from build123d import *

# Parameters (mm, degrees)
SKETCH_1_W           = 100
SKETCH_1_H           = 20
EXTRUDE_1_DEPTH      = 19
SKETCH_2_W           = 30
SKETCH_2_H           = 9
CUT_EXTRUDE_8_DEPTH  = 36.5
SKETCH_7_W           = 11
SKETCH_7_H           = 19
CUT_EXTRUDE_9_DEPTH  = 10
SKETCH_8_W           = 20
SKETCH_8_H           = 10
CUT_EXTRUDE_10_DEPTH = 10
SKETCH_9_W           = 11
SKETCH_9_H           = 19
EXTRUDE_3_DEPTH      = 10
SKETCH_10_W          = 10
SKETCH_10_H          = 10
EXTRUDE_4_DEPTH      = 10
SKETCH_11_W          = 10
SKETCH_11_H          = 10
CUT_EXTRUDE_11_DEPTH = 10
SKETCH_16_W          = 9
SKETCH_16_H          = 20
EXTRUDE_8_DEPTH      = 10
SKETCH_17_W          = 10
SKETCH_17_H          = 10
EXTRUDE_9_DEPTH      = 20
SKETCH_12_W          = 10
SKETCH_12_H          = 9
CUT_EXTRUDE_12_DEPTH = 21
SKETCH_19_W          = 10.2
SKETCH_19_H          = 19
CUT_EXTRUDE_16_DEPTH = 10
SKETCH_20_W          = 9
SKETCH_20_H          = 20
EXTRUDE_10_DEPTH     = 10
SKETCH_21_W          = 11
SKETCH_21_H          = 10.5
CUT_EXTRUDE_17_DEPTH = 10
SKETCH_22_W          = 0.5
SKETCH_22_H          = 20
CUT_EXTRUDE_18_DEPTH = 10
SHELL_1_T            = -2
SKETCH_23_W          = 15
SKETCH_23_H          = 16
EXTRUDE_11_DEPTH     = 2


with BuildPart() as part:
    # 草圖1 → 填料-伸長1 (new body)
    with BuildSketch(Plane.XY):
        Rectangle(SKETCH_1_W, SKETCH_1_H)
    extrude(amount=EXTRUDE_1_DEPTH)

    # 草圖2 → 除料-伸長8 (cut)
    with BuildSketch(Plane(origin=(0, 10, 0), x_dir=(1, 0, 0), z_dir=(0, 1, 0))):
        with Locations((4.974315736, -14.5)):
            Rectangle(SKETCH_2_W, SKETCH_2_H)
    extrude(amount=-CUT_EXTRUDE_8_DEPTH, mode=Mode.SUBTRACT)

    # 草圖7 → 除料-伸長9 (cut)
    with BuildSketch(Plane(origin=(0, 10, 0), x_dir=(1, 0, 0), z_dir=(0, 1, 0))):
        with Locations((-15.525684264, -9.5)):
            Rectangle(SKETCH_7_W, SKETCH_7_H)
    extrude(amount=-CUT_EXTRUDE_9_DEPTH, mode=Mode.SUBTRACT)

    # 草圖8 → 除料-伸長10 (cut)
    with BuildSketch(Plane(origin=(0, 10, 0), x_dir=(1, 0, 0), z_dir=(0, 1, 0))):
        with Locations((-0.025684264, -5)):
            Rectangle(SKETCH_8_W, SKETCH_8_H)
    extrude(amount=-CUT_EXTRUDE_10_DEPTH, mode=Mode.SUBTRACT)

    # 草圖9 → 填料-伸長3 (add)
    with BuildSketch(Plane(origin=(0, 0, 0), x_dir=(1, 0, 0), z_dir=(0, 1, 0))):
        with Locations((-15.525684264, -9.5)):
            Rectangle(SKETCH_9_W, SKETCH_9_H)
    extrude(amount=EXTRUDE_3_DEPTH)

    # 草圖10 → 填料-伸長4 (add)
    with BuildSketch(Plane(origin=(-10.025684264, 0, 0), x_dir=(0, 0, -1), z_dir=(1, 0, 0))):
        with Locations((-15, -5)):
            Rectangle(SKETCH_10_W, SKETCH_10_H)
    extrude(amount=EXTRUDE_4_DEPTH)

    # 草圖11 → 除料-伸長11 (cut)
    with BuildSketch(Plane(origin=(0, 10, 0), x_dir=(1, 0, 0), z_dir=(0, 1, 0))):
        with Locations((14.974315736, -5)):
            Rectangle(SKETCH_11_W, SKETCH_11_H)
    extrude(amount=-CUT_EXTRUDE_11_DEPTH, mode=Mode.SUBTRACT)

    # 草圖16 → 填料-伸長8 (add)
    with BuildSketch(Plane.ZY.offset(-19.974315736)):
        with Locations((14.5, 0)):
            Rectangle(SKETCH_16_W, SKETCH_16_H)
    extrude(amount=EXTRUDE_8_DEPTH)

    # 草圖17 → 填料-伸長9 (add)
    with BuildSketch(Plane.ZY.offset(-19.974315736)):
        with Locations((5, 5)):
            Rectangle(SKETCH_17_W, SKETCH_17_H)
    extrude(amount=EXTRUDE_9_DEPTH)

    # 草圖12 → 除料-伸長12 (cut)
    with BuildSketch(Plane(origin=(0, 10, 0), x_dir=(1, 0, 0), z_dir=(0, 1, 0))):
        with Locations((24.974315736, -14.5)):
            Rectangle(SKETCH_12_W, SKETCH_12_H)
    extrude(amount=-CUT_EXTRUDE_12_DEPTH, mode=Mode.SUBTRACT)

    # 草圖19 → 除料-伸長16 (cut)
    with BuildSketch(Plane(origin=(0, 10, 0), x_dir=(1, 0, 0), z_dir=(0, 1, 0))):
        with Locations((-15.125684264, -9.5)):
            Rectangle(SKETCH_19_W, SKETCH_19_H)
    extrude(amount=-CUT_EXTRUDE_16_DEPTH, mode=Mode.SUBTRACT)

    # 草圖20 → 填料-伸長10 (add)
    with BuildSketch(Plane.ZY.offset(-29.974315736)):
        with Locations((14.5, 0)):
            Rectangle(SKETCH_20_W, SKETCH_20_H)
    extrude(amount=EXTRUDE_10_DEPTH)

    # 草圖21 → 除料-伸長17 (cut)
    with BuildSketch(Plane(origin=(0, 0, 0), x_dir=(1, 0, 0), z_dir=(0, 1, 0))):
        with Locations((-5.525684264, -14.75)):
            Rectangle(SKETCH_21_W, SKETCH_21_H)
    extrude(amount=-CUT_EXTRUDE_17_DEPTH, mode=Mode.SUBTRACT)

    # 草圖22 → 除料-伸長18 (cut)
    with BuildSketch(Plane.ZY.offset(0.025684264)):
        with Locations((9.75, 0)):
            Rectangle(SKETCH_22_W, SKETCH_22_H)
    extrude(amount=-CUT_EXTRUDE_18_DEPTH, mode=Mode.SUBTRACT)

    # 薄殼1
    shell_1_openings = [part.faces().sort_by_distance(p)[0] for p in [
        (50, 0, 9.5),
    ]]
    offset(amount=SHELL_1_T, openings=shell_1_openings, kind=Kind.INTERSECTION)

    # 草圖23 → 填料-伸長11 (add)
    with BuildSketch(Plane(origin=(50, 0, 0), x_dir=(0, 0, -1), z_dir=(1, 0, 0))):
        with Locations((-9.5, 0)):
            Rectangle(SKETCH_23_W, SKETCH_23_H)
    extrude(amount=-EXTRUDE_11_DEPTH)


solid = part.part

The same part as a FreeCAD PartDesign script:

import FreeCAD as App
import Part
import Sketcher
from FreeCAD import Vector


def faces_at(feature, points):
    """Names of the faces that lie closest to the given points."""
    faces = feature.Shape.Faces
    near = lambda p: min(range(len(faces)), key=lambda i: faces[i].distToShape(Part.Vertex(*p))[0])
    return sorted({f"Face{near(p) + 1}" for p in points})

doc = App.newDocument("Part")
body = doc.addObject("PartDesign::Body", "Body")

# Sketch on XY plane
sketch1 = body.newObject("Sketcher::SketchObject", "Sketch")
sketch1.AttachmentSupport = (doc.getObject("XY_Plane"), [""])
sketch1.MapMode = "FlatFace"
sketch1.addGeometry([
    Part.LineSegment(Vector(-50, 10, 0), Vector(-50, -10, 0)),
    Part.LineSegment(Vector(-50, -10, 0), Vector(50, -10, 0)),
    Part.LineSegment(Vector(50, -10, 0), Vector(50, 10, 0)),
    Part.LineSegment(Vector(50, 10, 0), Vector(-50, 10, 0)),
], False)
sketch1.addConstraint([
    Sketcher.Constraint("Coincident", 0, 2, 1, 1),
    Sketcher.Constraint("Coincident", 1, 2, 2, 1),
    Sketcher.Constraint("Coincident", 2, 2, 3, 1),
    Sketcher.Constraint("Coincident", 3, 2, 0, 1),
    Sketcher.Constraint("Vertical", 0),
    Sketcher.Constraint("Horizontal", 1),
    Sketcher.Constraint("Vertical", 2),
    Sketcher.Constraint("Horizontal", 3),
    Sketcher.Constraint("Symmetric", 0, 2, 2, 2, -1, 1),
    Sketcher.Constraint("DistanceX", 1, 1, 1, 2, 100.0),
    Sketcher.Constraint("DistanceY", 0, 2, 0, 1, 20.0),
])
pad1 = body.newObject("PartDesign::Pad", "Pad")
pad1.Profile = sketch1
pad1.Length = 19

# Sketch on XZ plane
sketch2 = body.newObject("Sketcher::SketchObject", "Sketch001")
sketch2.AttachmentSupport = (doc.getObject("XZ_Plane"), [""])
sketch2.MapMode = "FlatFace"
sketch2.AttachmentOffset = App.Placement(Vector(0, 0, -10), App.Rotation())
sketch2.addGeometry([
    Part.LineSegment(Vector(-10.025684, 10, 0), Vector(-10.025684, 19, 0)),
    Part.LineSegment(Vector(-10.025684, 19, 0), Vector(19.974316, 19, 0)),
    Part.LineSegment(Vector(19.974316, 19, 0), Vector(19.974316, 10, 0)),
    Part.LineSegment(Vector(19.974316, 10, 0), Vector(-10.025684, 10, 0)),
], False)
sketch2.addConstraint([
    Sketcher.Constraint("Coincident", 0, 2, 1, 1),
    Sketcher.Constraint("Coincident", 1, 2, 2, 1),
    Sketcher.Constraint("Coincident", 2, 2, 3, 1),
    Sketcher.Constraint("Coincident", 3, 2, 0, 1),
    Sketcher.Constraint("Vertical", 0),
    Sketcher.Constraint("Horizontal", 1),
    Sketcher.Constraint("Vertical", 2),
    Sketcher.Constraint("Horizontal", 3),
    Sketcher.Constraint("DistanceX", 1, 1, 1, 2, 30.0),
    Sketcher.Constraint("DistanceY", 0, 1, 0, 2, 9.0),
    Sketcher.Constraint("DistanceY", -1, 1, 0, 2, 19.0),
    Sketcher.Constraint("DistanceX", 0, 2, -1, 1, 10.025684),
])
pocket1 = body.newObject("PartDesign::Pocket", "Pocket")
pocket1.Profile = sketch2
pocket1.Length = 36.5
pocket1.Reversed = True

# Sketch on XZ plane
sketch3 = body.newObject("Sketcher::SketchObject", "Sketch002")
sketch3.AttachmentSupport = (doc.getObject("XZ_Plane"), [""])
sketch3.MapMode = "FlatFace"
sketch3.AttachmentOffset = App.Placement(Vector(0, 0, -10), App.Rotation())
sketch3.addGeometry([
    Part.LineSegment(Vector(-21.025684, 0, 0), Vector(-21.025684, 19, 0)),
    Part.LineSegment(Vector(-21.025684, 19, 0), Vector(-10.025684, 19, 0)),
    Part.LineSegment(Vector(-10.025684, 19, 0), Vector(-10.025684, 0, 0)),
    Part.LineSegment(Vector(-10.025684, 0, 0), Vector(-21.025684, 0, 0)),
], False)
sketch3.addConstraint([
    Sketcher.Constraint("Coincident", 0, 2, 1, 1),
    Sketcher.Constraint("Coincident", 1, 2, 2, 1),
    Sketcher.Constraint("Coincident", 2, 2, 3, 1),
    Sketcher.Constraint("Coincident", 3, 2, 0, 1),
    Sketcher.Constraint("Vertical", 0),
    Sketcher.Constraint("Horizontal", 1),
    Sketcher.Constraint("Vertical", 2),
    Sketcher.Constraint("Horizontal", 3),
    Sketcher.Constraint("PointOnObject", 2, 2, -1),
    Sketcher.Constraint("DistanceX", 1, 1, 1, 2, 11.0),
    Sketcher.Constraint("DistanceY", 0, 1, 0, 2, 19.0),
    Sketcher.Constraint("DistanceX", 0, 2, -1, 1, 21.025684),
])
pocket2 = body.newObject("PartDesign::Pocket", "Pocket001")
pocket2.Profile = sketch3
pocket2.Length = 10
pocket2.Reversed = True

# Sketch on XZ plane
sketch4 = body.newObject("Sketcher::SketchObject", "Sketch003")
sketch4.AttachmentSupport = (doc.getObject("XZ_Plane"), [""])
sketch4.MapMode = "FlatFace"
sketch4.AttachmentOffset = App.Placement(Vector(0, 0, -10), App.Rotation())
sketch4.addGeometry([
    Part.LineSegment(Vector(-10.025684, 0, 0), Vector(-10.025684, 10, 0)),
    Part.LineSegment(Vector(-10.025684, 10, 0), Vector(9.974316, 10, 0)),
    Part.LineSegment(Vector(9.974316, 10, 0), Vector(9.974316, 0, 0)),
    Part.LineSegment(Vector(9.974316, 0, 0), Vector(-10.025684, 0, 0)),
], False)
sketch4.addConstraint([
    Sketcher.Constraint("Coincident", 0, 2, 1, 1),
    Sketcher.Constraint("Coincident", 1, 2, 2, 1),
    Sketcher.Constraint("Coincident", 2, 2, 3, 1),
    Sketcher.Constraint("Coincident", 3, 2, 0, 1),
    Sketcher.Constraint("Vertical", 0),
    Sketcher.Constraint("Horizontal", 1),
    Sketcher.Constraint("Vertical", 2),
    Sketcher.Constraint("Horizontal", 3),
    Sketcher.Constraint("PointOnObject", 2, 2, -1),
    Sketcher.Constraint("DistanceX", 1, 1, 1, 2, 20.0),
    Sketcher.Constraint("DistanceY", 0, 1, 0, 2, 10.0),
    Sketcher.Constraint("DistanceX", 0, 2, -1, 1, 10.025684),
])
pocket3 = body.newObject("PartDesign::Pocket", "Pocket002")
pocket3.Profile = sketch4
pocket3.Length = 10
pocket3.Reversed = True

# Sketch on XZ plane
sketch5 = body.newObject("Sketcher::SketchObject", "Sketch004")
sketch5.AttachmentSupport = (doc.getObject("XZ_Plane"), [""])
sketch5.MapMode = "FlatFace"
sketch5.addGeometry([
    Part.LineSegment(Vector(-21.025684, 0, 0), Vector(-21.025684, 19, 0)),
    Part.LineSegment(Vector(-21.025684, 19, 0), Vector(-10.025684, 19, 0)),
    Part.LineSegment(Vector(-10.025684, 19, 0), Vector(-10.025684, 0, 0)),
    Part.LineSegment(Vector(-10.025684, 0, 0), Vector(-21.025684, 0, 0)),
], False)
sketch5.addConstraint([
    Sketcher.Constraint("Coincident", 0, 2, 1, 1),
    Sketcher.Constraint("Coincident", 1, 2, 2, 1),
    Sketcher.Constraint("Coincident", 2, 2, 3, 1),
    Sketcher.Constraint("Coincident", 3, 2, 0, 1),
    Sketcher.Constraint("Vertical", 0),
    Sketcher.Constraint("Horizontal", 1),
    Sketcher.Constraint("Vertical", 2),
    Sketcher.Constraint("Horizontal", 3),
    Sketcher.Constraint("PointOnObject", 2, 2, -1),
    Sketcher.Constraint("DistanceX", 1, 1, 1, 2, 11.0),
    Sketcher.Constraint("DistanceY", 0, 1, 0, 2, 19.0),
    Sketcher.Constraint("DistanceX", 0, 2, -1, 1, 21.025684),
])
pad2 = body.newObject("PartDesign::Pad", "Pad001")
pad2.Profile = sketch5
pad2.Length = 10
pad2.Reversed = True

# Sketch on YZ plane
sketch6 = body.newObject("Sketcher::SketchObject", "Sketch005")
sketch6.AttachmentSupport = (doc.getObject("YZ_Plane"), [""])
sketch6.MapMode = "FlatFace"
sketch6.AttachmentOffset = App.Placement(Vector(0, 0, -10.025684), App.Rotation())
sketch6.addGeometry([
    Part.LineSegment(Vector(0, 20, 0), Vector(-10, 20, 0)),
    Part.LineSegment(Vector(-10, 20, 0), Vector(-10, 10, 0)),
    Part.LineSegment(Vector(-10, 10, 0), Vector(0, 10, 0)),
    Part.LineSegment(Vector(0, 10, 0), Vector(0, 20, 0)),
], False)
sketch6.addConstraint([
    Sketcher.Constraint("Coincident", 0, 2, 1, 1),
    Sketcher.Constraint("Coincident", 1, 2, 2, 1),
    Sketcher.Constraint("Coincident", 2, 2, 3, 1),
    Sketcher.Constraint("Coincident", 3, 2, 0, 1),
    Sketcher.Constraint("Horizontal", 0),
    Sketcher.Constraint("Vertical", 1),
    Sketcher.Constraint("Horizontal", 2),
    Sketcher.Constraint("Vertical", 3),
    Sketcher.Constraint("PointOnObject", 2, 2, -2),
    Sketcher.Constraint("Equal", 2, 1),
    Sketcher.Constraint("DistanceX", 0, 2, 0, 1, 10.0),
    Sketcher.Constraint("DistanceY", -1, 1, 0, 2, 20.0),
])
pad3 = body.newObject("PartDesign::Pad", "Pad002")
pad3.Profile = sketch6
pad3.Length = 10

# Sketch on XZ plane
sketch7 = body.newObject("Sketcher::SketchObject", "Sketch006")
sketch7.AttachmentSupport = (doc.getObject("XZ_Plane"), [""])
sketch7.MapMode = "FlatFace"
sketch7.AttachmentOffset = App.Placement(Vector(0, 0, -10), App.Rotation())
sketch7.addGeometry([
    Part.LineSegment(Vector(9.974316, 0, 0), Vector(9.974316, 10, 0)),
    Part.LineSegment(Vector(9.974316, 10, 0), Vector(19.974316, 10, 0)),
    Part.LineSegment(Vector(19.974316, 10, 0), Vector(19.974316, 0, 0)),
    Part.LineSegment(Vector(19.974316, 0, 0), Vector(9.974316, 0, 0)),
], False)
sketch7.addConstraint([
    Sketcher.Constraint("Coincident", 0, 2, 1, 1),
    Sketcher.Constraint("Coincident", 1, 2, 2, 1),
    Sketcher.Constraint("Coincident", 2, 2, 3, 1),
    Sketcher.Constraint("Coincident", 3, 2, 0, 1),
    Sketcher.Constraint("Vertical", 0),
    Sketcher.Constraint("Horizontal", 1),
    Sketcher.Constraint("Vertical", 2),
    Sketcher.Constraint("Horizontal", 3),
    Sketcher.Constraint("PointOnObject", 2, 2, -1),
    Sketcher.Constraint("Equal", 3, 0),
    Sketcher.Constraint("DistanceX", 1, 1, 1, 2, 10.0),
    Sketcher.Constraint("DistanceX", -1, 1, 0, 2, 9.974316),
])
pocket4 = body.newObject("PartDesign::Pocket", "Pocket003")
pocket4.Profile = sketch7
pocket4.Length = 10
pocket4.Reversed = True

# Sketch on YZ plane
sketch8 = body.newObject("Sketcher::SketchObject", "Sketch007")
sketch8.AttachmentSupport = (doc.getObject("YZ_Plane"), [""])
sketch8.MapMode = "FlatFace"
sketch8.AttachmentOffset = App.Placement(Vector(0, 0, 19.974316), App.Rotation())
sketch8.addGeometry([
    Part.LineSegment(Vector(10, 10, 0), Vector(-10, 10, 0)),
    Part.LineSegment(Vector(-10, 10, 0), Vector(-10, 19, 0)),
    Part.LineSegment(Vector(-10, 19, 0), Vector(10, 19, 0)),
    Part.LineSegment(Vector(10, 19, 0), Vector(10, 10, 0)),
], False)
sketch8.addConstraint([
    Sketcher.Constraint("Coincident", 0, 2, 1, 1),
    Sketcher.Constraint("Coincident", 1, 2, 2, 1),
    Sketcher.Constraint("Coincident", 2, 2, 3, 1),
    Sketcher.Constraint("Coincident", 3, 2, 0, 1),
    Sketcher.Constraint("Horizontal", 0),
    Sketcher.Constraint("Vertical", 1),
    Sketcher.Constraint("Horizontal", 2),
    Sketcher.Constraint("Vertical", 3),
    Sketcher.Constraint("DistanceX", 0, 2, 0, 1, 20.0),
    Sketcher.Constraint("DistanceY", 1, 1, 1, 2, 9.0),
    Sketcher.Constraint("DistanceX", 0, 2, -1, 1, 10.0),
    Sketcher.Constraint("DistanceY", -1, 1, 0, 2, 10.0),
])
pad4 = body.newObject("PartDesign::Pad", "Pad003")
pad4.Profile = sketch8
pad4.Length = 10
pad4.Reversed = True

# Sketch on YZ plane
sketch9 = body.newObject("Sketcher::SketchObject", "Sketch008")
sketch9.AttachmentSupport = (doc.getObject("YZ_Plane"), [""])
sketch9.MapMode = "FlatFace"
sketch9.AttachmentOffset = App.Placement(Vector(0, 0, 19.974316), App.Rotation())
sketch9.addGeometry([
    Part.LineSegment(Vector(10, 0, 0), Vector(0, 0, 0)),
    Part.LineSegment(Vector(0, 0, 0), Vector(0, 10, 0)),
    Part.LineSegment(Vector(0, 10, 0), Vector(10, 10, 0)),
    Part.LineSegment(Vector(10, 10, 0), Vector(10, 0, 0)),
], False)
sketch9.addConstraint([
    Sketcher.Constraint("Coincident", 0, 2, 1, 1),
    Sketcher.Constraint("Coincident", 1, 2, 2, 1),
    Sketcher.Constraint("Coincident", 2, 2, 3, 1),
    Sketcher.Constraint("Coincident", 3, 2, 0, 1),
    Sketcher.Constraint("Horizontal", 0),
    Sketcher.Constraint("Vertical", 1),
    Sketcher.Constraint("Horizontal", 2),
    Sketcher.Constraint("Vertical", 3),
    Sketcher.Constraint("Coincident", 0, 2, -1, 1),
    Sketcher.Constraint("Equal", 2, 1),
    Sketcher.Constraint("DistanceX", 0, 2, 0, 1, 10.0),
])
pad5 = body.newObject("PartDesign::Pad", "Pad004")
pad5.Profile = sketch9
pad5.Length = 20
pad5.Reversed = True

# Sketch on XZ plane
sketch10 = body.newObject("Sketcher::SketchObject", "Sketch009")
sketch10.AttachmentSupport = (doc.getObject("XZ_Plane"), [""])
sketch10.MapMode = "FlatFace"
sketch10.AttachmentOffset = App.Placement(Vector(0, 0, -10), App.Rotation())
sketch10.addGeometry([
    Part.LineSegment(Vector(19.974316, 10, 0), Vector(19.974316, 19, 0)),
    Part.LineSegment(Vector(19.974316, 19, 0), Vector(29.974316, 19, 0)),
    Part.LineSegment(Vector(29.974316, 19, 0), Vector(29.974316, 10, 0)),
    Part.LineSegment(Vector(29.974316, 10, 0), Vector(19.974316, 10, 0)),
], False)
sketch10.addConstraint([
    Sketcher.Constraint("Coincident", 0, 2, 1, 1),
    Sketcher.Constraint("Coincident", 1, 2, 2, 1),
    Sketcher.Constraint("Coincident", 2, 2, 3, 1),
    Sketcher.Constraint("Coincident", 3, 2, 0, 1),
    Sketcher.Constraint("Vertical", 0),
    Sketcher.Constraint("Horizontal", 1),
    Sketcher.Constraint("Vertical", 2),
    Sketcher.Constraint("Horizontal", 3),
    Sketcher.Constraint("DistanceX", 1, 1, 1, 2, 10.0),
    Sketcher.Constraint("DistanceY", 0, 1, 0, 2, 9.0),
    Sketcher.Constraint("DistanceY", -1, 1, 0, 2, 19.0),
    Sketcher.Constraint("DistanceX", -1, 1, 0, 2, 19.974316),
])
pocket5 = body.newObject("PartDesign::Pocket", "Pocket004")
pocket5.Profile = sketch10
pocket5.Length = 21
pocket5.Reversed = True

# Sketch on XZ plane
sketch11 = body.newObject("Sketcher::SketchObject", "Sketch010")
sketch11.AttachmentSupport = (doc.getObject("XZ_Plane"), [""])
sketch11.MapMode = "FlatFace"
sketch11.AttachmentOffset = App.Placement(Vector(0, 0, -10), App.Rotation())
sketch11.addGeometry([
    Part.LineSegment(Vector(-20.225684, 0, 0), Vector(-20.225684, 19, 0)),
    Part.LineSegment(Vector(-20.225684, 19, 0), Vector(-10.025684, 19, 0)),
    Part.LineSegment(Vector(-10.025684, 19, 0), Vector(-10.025684, 0, 0)),
    Part.LineSegment(Vector(-10.025684, 0, 0), Vector(-20.225684, 0, 0)),
], False)
sketch11.addConstraint([
    Sketcher.Constraint("Coincident", 0, 2, 1, 1),
    Sketcher.Constraint("Coincident", 1, 2, 2, 1),
    Sketcher.Constraint("Coincident", 2, 2, 3, 1),
    Sketcher.Constraint("Coincident", 3, 2, 0, 1),
    Sketcher.Constraint("Vertical", 0),
    Sketcher.Constraint("Horizontal", 1),
    Sketcher.Constraint("Vertical", 2),
    Sketcher.Constraint("Horizontal", 3),
    Sketcher.Constraint("PointOnObject", 2, 2, -1),
    Sketcher.Constraint("DistanceY", 0, 1, 0, 2, 19.0),
    Sketcher.Constraint("DistanceX", 1, 1, 1, 2, 10.2),
    Sketcher.Constraint("DistanceX", 0, 2, -1, 1, 20.225684),
])
pocket6 = body.newObject("PartDesign::Pocket", "Pocket005")
pocket6.Profile = sketch11
pocket6.Length = 10
pocket6.Reversed = True

# Sketch on YZ plane
sketch12 = body.newObject("Sketcher::SketchObject", "Sketch011")
sketch12.AttachmentSupport = (doc.getObject("YZ_Plane"), [""])
sketch12.MapMode = "FlatFace"
sketch12.AttachmentOffset = App.Placement(Vector(0, 0, 29.974316), App.Rotation())
sketch12.addGeometry([
    Part.LineSegment(Vector(10, 10, 0), Vector(-10, 10, 0)),
    Part.LineSegment(Vector(-10, 10, 0), Vector(-10, 19, 0)),
    Part.LineSegment(Vector(-10, 19, 0), Vector(10, 19, 0)),
    Part.LineSegment(Vector(10, 19, 0), Vector(10, 10, 0)),
], False)
sketch12.addConstraint([
    Sketcher.Constraint("Coincident", 0, 2, 1, 1),
    Sketcher.Constraint("Coincident", 1, 2, 2, 1),
    Sketcher.Constraint("Coincident", 2, 2, 3, 1),
    Sketcher.Constraint("Coincident", 3, 2, 0, 1),
    Sketcher.Constraint("Horizontal", 0),
    Sketcher.Constraint("Vertical", 1),
    Sketcher.Constraint("Horizontal", 2),
    Sketcher.Constraint("Vertical", 3),
    Sketcher.Constraint("DistanceX", 0, 2, 0, 1, 20.0),
    Sketcher.Constraint("DistanceY", 1, 1, 1, 2, 9.0),
    Sketcher.Constraint("DistanceX", 0, 2, -1, 1, 10.0),
    Sketcher.Constraint("DistanceY", -1, 1, 0, 2, 10.0),
])
pad6 = body.newObject("PartDesign::Pad", "Pad005")
pad6.Profile = sketch12
pad6.Length = 10
pad6.Reversed = True

# Sketch on XZ plane
sketch13 = body.newObject("Sketcher::SketchObject", "Sketch012")
sketch13.AttachmentSupport = (doc.getObject("XZ_Plane"), [""])
sketch13.MapMode = "FlatFace"
sketch13.addGeometry([
    Part.LineSegment(Vector(-11.025684, 9.5, 0), Vector(-11.025684, 20, 0)),
    Part.LineSegment(Vector(-11.025684, 20, 0), Vector(-0.025684, 20, 0)),
    Part.LineSegment(Vector(-0.025684, 20, 0), Vector(-0.025684, 9.5, 0)),
    Part.LineSegment(Vector(-0.025684, 9.5, 0), Vector(-11.025684, 9.5, 0)),
], False)
sketch13.addConstraint([
    Sketcher.Constraint("Coincident", 0, 2, 1, 1),
    Sketcher.Constraint("Coincident", 1, 2, 2, 1),
    Sketcher.Constraint("Coincident", 2, 2, 3, 1),
    Sketcher.Constraint("Coincident", 3, 2, 0, 1),
    Sketcher.Constraint("Vertical", 0),
    Sketcher.Constraint("Horizontal", 1),
    Sketcher.Constraint("Vertical", 2),
    Sketcher.Constraint("Horizontal", 3),
    Sketcher.Constraint("DistanceX", 1, 1, 1, 2, 11.0),
    Sketcher.Constraint("DistanceY", 0, 1, 0, 2, 10.5),
    Sketcher.Constraint("DistanceY", -1, 1, 0, 2, 20.0),
    Sketcher.Constraint("DistanceX", 0, 2, -1, 1, 11.025684),
])
pocket7 = body.newObject("PartDesign::Pocket", "Pocket006")
pocket7.Profile = sketch13
pocket7.Length = 10
pocket7.Reversed = True

# Sketch on YZ plane
sketch14 = body.newObject("Sketcher::SketchObject", "Sketch013")
sketch14.AttachmentSupport = (doc.getObject("YZ_Plane"), [""])
sketch14.MapMode = "FlatFace"
sketch14.AttachmentOffset = App.Placement(Vector(0, 0, -0.025684), App.Rotation())
sketch14.addGeometry([
    Part.LineSegment(Vector(10, 9.5, 0), Vector(-10, 9.5, 0)),
    Part.LineSegment(Vector(-10, 9.5, 0), Vector(-10, 10, 0)),
    Part.LineSegment(Vector(-10, 10, 0), Vector(10, 10, 0)),
    Part.LineSegment(Vector(10, 10, 0), Vector(10, 9.5, 0)),
], False)
sketch14.addConstraint([
    Sketcher.Constraint("Coincident", 0, 2, 1, 1),
    Sketcher.Constraint("Coincident", 1, 2, 2, 1),
    Sketcher.Constraint("Coincident", 2, 2, 3, 1),
    Sketcher.Constraint("Coincident", 3, 2, 0, 1),
    Sketcher.Constraint("Horizontal", 0),
    Sketcher.Constraint("Vertical", 1),
    Sketcher.Constraint("Horizontal", 2),
    Sketcher.Constraint("Vertical", 3),
    Sketcher.Constraint("DistanceX", 0, 2, 0, 1, 20.0),
    Sketcher.Constraint("DistanceY", 1, 1, 1, 2, 0.5),
    Sketcher.Constraint("DistanceX", 0, 2, -1, 1, 10.0),
    Sketcher.Constraint("DistanceY", -1, 1, 1, 2, 10.0),
])
pocket8 = body.newObject("PartDesign::Pocket", "Pocket007")
pocket8.Profile = sketch14
pocket8.Length = 10
pocket8.Reversed = True
doc.recompute()

thickness = body.newObject("PartDesign::Thickness", "Thickness")
thickness.Base = (pocket8, faces_at(pocket8, [(50, 0, 9.5)]))
thickness.Value = 2
thickness.Reversed = True
thickness.Join = "Intersection"

# Sketch on YZ plane
sketch15 = body.newObject("Sketcher::SketchObject", "Sketch014")
sketch15.AttachmentSupport = (doc.getObject("YZ_Plane"), [""])
sketch15.MapMode = "FlatFace"
sketch15.AttachmentOffset = App.Placement(Vector(0, 0, 50), App.Rotation())
sketch15.addGeometry([
    Part.LineSegment(Vector(8, 17, 0), Vector(-8, 17, 0)),
    Part.LineSegment(Vector(-8, 17, 0), Vector(-8, 2, 0)),
    Part.LineSegment(Vector(-8, 2, 0), Vector(8, 2, 0)),
    Part.LineSegment(Vector(8, 2, 0), Vector(8, 17, 0)),
], False)
sketch15.addConstraint([
    Sketcher.Constraint("Coincident", 0, 2, 1, 1),
    Sketcher.Constraint("Coincident", 1, 2, 2, 1),
    Sketcher.Constraint("Coincident", 2, 2, 3, 1),
    Sketcher.Constraint("Coincident", 3, 2, 0, 1),
    Sketcher.Constraint("Horizontal", 0),
    Sketcher.Constraint("Vertical", 1),
    Sketcher.Constraint("Horizontal", 2),
    Sketcher.Constraint("Vertical", 3),
    Sketcher.Constraint("DistanceX", 0, 2, 0, 1, 16.0),
    Sketcher.Constraint("DistanceY", 1, 2, 1, 1, 15.0),
    Sketcher.Constraint("DistanceX", 0, 2, -1, 1, 8.0),
    Sketcher.Constraint("DistanceY", -1, 1, 0, 2, 17.0),
])
pad7 = body.newObject("PartDesign::Pad", "Pad006")
pad7.Profile = sketch15
pad7.Length = 2
pad7.Reversed = True

doc.recompute()
